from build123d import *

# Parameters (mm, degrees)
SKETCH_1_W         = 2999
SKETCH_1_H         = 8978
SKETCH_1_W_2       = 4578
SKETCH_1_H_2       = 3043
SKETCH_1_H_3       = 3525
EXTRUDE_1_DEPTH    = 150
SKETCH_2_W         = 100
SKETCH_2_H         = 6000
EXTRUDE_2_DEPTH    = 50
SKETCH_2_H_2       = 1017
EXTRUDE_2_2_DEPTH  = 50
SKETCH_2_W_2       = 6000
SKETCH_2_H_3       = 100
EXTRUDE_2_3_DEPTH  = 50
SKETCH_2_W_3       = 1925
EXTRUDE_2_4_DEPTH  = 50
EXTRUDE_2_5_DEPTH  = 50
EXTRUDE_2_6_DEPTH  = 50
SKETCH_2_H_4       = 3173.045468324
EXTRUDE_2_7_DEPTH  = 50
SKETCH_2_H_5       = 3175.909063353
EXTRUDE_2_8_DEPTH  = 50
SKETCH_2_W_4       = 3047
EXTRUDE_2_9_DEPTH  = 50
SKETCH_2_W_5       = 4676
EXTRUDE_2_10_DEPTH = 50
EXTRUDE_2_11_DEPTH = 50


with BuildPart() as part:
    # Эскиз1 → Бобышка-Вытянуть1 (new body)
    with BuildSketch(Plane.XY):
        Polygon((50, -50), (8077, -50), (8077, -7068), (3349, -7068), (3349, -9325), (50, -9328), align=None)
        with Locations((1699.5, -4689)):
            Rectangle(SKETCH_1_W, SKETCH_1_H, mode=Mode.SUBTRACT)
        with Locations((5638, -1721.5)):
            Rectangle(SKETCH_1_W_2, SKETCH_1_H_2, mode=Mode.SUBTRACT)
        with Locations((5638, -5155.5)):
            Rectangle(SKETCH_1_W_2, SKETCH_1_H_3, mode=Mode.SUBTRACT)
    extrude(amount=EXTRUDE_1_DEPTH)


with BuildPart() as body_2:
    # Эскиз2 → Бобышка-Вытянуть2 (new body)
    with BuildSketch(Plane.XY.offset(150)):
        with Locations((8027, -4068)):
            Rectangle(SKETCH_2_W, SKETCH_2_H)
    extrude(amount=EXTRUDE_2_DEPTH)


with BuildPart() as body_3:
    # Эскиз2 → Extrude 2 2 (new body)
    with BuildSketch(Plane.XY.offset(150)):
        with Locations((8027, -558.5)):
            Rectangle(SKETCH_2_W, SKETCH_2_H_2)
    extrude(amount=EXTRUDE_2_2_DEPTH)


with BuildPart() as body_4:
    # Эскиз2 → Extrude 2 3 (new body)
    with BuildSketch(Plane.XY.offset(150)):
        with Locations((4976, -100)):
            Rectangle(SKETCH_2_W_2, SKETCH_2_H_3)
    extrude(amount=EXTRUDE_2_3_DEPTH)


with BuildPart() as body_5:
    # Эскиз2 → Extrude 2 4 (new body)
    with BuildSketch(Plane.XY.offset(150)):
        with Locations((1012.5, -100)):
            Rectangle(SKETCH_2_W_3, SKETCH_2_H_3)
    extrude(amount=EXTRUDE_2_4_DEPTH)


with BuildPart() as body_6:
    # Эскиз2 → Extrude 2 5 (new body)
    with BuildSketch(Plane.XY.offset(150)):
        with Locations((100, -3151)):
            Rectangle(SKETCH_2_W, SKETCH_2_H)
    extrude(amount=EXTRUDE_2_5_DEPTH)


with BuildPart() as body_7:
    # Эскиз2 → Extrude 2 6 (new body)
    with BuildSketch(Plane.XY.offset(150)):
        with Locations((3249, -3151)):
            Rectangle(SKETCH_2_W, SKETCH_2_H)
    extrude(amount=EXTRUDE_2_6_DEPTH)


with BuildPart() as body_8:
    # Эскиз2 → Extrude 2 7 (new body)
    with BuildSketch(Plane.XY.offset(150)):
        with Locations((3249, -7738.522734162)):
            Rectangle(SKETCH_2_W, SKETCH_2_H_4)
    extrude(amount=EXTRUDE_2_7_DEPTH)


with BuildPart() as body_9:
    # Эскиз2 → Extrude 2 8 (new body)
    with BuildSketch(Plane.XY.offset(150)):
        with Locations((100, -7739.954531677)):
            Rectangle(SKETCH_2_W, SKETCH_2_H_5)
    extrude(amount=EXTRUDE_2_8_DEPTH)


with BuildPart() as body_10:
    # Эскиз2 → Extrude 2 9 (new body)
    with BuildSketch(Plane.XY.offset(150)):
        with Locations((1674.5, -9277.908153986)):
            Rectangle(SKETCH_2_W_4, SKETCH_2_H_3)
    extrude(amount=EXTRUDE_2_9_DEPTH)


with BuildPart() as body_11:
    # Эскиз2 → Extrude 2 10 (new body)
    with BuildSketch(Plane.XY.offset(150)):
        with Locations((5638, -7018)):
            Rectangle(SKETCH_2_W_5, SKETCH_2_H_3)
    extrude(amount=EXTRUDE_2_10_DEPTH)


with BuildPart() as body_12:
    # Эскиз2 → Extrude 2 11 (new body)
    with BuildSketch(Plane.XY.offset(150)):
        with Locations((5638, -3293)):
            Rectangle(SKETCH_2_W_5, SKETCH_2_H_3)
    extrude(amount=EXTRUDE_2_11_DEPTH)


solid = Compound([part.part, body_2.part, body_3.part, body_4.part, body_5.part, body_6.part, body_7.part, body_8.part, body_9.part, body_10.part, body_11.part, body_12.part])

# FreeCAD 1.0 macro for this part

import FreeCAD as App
import Part
import Sketcher

doc = App.newDocument("Part")
body = doc.addObject("PartDesign::Body", "Body")

# Sketch on XY plane
sketch1 = body.newObject("Sketcher::SketchObject", "Sketch")
sketch1.AttachmentSupport = (doc.getObject("XY_Plane"), [""])
sketch1.MapMode = "FlatFace"
sketch1.addGeometry([
    Part.LineSegment(App.Vector(8077, -50, 0), App.Vector(50, -50, 0)),  # 0
    Part.LineSegment(App.Vector(50, -50, 0), App.Vector(50, -9328, 0)),  # 1
    Part.LineSegment(App.Vector(50, -9328, 0), App.Vector(3349, -9325, 0)),  # 2
    Part.LineSegment(App.Vector(3349, -9325, 0), App.Vector(3349, -7068, 0)),  # 3
    Part.LineSegment(App.Vector(3349, -7068, 0), App.Vector(8077, -7068, 0)),  # 4
    Part.LineSegment(App.Vector(8077, -7068, 0), App.Vector(8077, -50, 0)),  # 5
    Part.LineSegment(App.Vector(3349, -6918, 0), App.Vector(3349, -3393, 0)),  # 6
    Part.LineSegment(App.Vector(3349, -3393, 0), App.Vector(7927, -3393, 0)),  # 7
    Part.LineSegment(App.Vector(7927, -3393, 0), App.Vector(7927, -6918, 0)),  # 8
    Part.LineSegment(App.Vector(7927, -6918, 0), App.Vector(3349, -6918, 0)),  # 9
    Part.LineSegment(App.Vector(3349, -3243, 0), App.Vector(3349, -200, 0)),  # 10
    Part.LineSegment(App.Vector(3349, -200, 0), App.Vector(7927, -200, 0)),  # 11
    Part.LineSegment(App.Vector(7927, -200, 0), App.Vector(7927, -3243, 0)),  # 12
    Part.LineSegment(App.Vector(7927, -3243, 0), App.Vector(3349, -3243, 0)),  # 13
    Part.LineSegment(App.Vector(200, -9178, 0), App.Vector(200, -200, 0)),  # 14
    Part.LineSegment(App.Vector(200, -200, 0), App.Vector(3199, -200, 0)),  # 15
    Part.LineSegment(App.Vector(3199, -200, 0), App.Vector(3199, -9178, 0)),  # 16
    Part.LineSegment(App.Vector(3199, -9178, 0), App.Vector(200, -9178, 0)),  # 17
], False)
sketch1.addConstraint([
    Sketcher.Constraint("Coincident", 0, 2, 1, 1),
    Sketcher.Constraint("Coincident", 1, 2, 2, 1),
    Sketcher.Constraint("Coincident", 2, 2, 3, 1),
    Sketcher.Constraint("Coincident", 3, 2, 4, 1),
    Sketcher.Constraint("Coincident", 4, 2, 5, 1),
    Sketcher.Constraint("Coincident", 5, 2, 0, 1),
    Sketcher.Constraint("Coincident", 6, 2, 7, 1),
    Sketcher.Constraint("Coincident", 7, 2, 8, 1),
    Sketcher.Constraint("Coincident", 8, 2, 9, 1),
    Sketcher.Constraint("Coincident", 9, 2, 6, 1),
    Sketcher.Constraint("Coincident", 10, 2, 11, 1),
    Sketcher.Constraint("Coincident", 11, 2, 12, 1),
    Sketcher.Constraint("Coincident", 12, 2, 13, 1),
    Sketcher.Constraint("Coincident", 13, 2, 10, 1),
    Sketcher.Constraint("Coincident", 14, 2, 15, 1),
    Sketcher.Constraint("Coincident", 15, 2, 16, 1),
    Sketcher.Constraint("Coincident", 16, 2, 17, 1),
    Sketcher.Constraint("Coincident", 17, 2, 14, 1),
    Sketcher.Constraint("Horizontal", 0),
    Sketcher.Constraint("Vertical", 1),
    Sketcher.Constraint("Vertical", 3),
    Sketcher.Constraint("Horizontal", 4),
    Sketcher.Constraint("Vertical", 5),
    Sketcher.Constraint("Vertical", 6),
    Sketcher.Constraint("Horizontal", 7),
    Sketcher.Constraint("Vertical", 8),
    Sketcher.Constraint("Horizontal", 9),
    Sketcher.Constraint("Vertical", 10),
    Sketcher.Constraint("Horizontal", 11),
    Sketcher.Constraint("Vertical", 12),
    Sketcher.Constraint("Horizontal", 13),
    Sketcher.Constraint("Vertical", 14),
    Sketcher.Constraint("Horizontal", 15),
    Sketcher.Constraint("Vertical", 16),
    Sketcher.Constraint("Horizontal", 17),
    Sketcher.Constraint("Horizontal", 11, 2, 14, 2),
    Sketcher.Constraint("Vertical", 3, 2, 6, 2),
    Sketcher.Constraint("Vertical", 9, 2, 10, 2),
    Sketcher.Constraint("Vertical", 8, 2, 11, 2),
    Sketcher.Constraint("DistanceX", 0, 2, 0, 1, 8027.0),
    Sketcher.Constraint("DistanceX", 4, 1, 4, 2, 4728.0),
    Sketcher.Constraint("DistanceX", 7, 1, 7, 2, 4578.0),
    Sketcher.Constraint("DistanceX", 15, 1, 15, 2, 2999.0),
    Sketcher.Constraint("DistanceY", 1, 2, 1, 1, 9278.0),
    Sketcher.Constraint("DistanceY", 3, 1, 3, 2, 2257.0),
    Sketcher.Constraint("DistanceY", 5, 1, 5, 2, 7018.0),
    Sketcher.Constraint("DistanceY", 6, 1, 6, 2, 3525.0),
    Sketcher.Constraint("DistanceY", 10, 1, 10, 2, 3043.0),
    Sketcher.Constraint("DistanceY", 14, 1, 14, 2, 8978.0),
    Sketcher.Constraint("DistanceX", -1, 1, 0, 2, 50.0),
    Sketcher.Constraint("DistanceY", 0, 2, -1, 1, 50.0),
    Sketcher.Constraint("DistanceY", 6, 2, -1, 1, 3393.0),
    Sketcher.Constraint("DistanceY", 10, 2, -1, 1, 200.0),
    Sketcher.Constraint("DistanceX", -1, 1, 14, 2, 200.0),
])
pad1 = body.newObject("PartDesign::Pad", "Pad")
pad1.Profile = sketch1
pad1.Length = 150
body2 = doc.addObject("PartDesign::Body", "Body001")

# Sketch on XY plane
sketch2 = body2.newObject("Sketcher::SketchObject", "Sketch001")
sketch2.AttachmentSupport = (doc.getObject("XY_Plane001"), [""])
sketch2.MapMode = "FlatFace"
sketch2.AttachmentOffset = App.Placement(App.Vector(0, 0, 150), App.Rotation())
sketch2.addGeometry([
    Part.LineSegment(App.Vector(7977, -1068, 0), App.Vector(7977, -7068, 0)),
    Part.LineSegment(App.Vector(7977, -7068, 0), App.Vector(8077, -7068, 0)),
    Part.LineSegment(App.Vector(8077, -7068, 0), App.Vector(8077, -1068, 0)),
    Part.LineSegment(App.Vector(8077, -1068, 0), App.Vector(7977, -1068, 0)),
], False)
sketch2.addConstraint([
    Sketcher.Constraint("Coincident", 0, 2, 1, 1),
    Sketcher.Constraint("Coincident", 1, 2, 2, 1),
    Sketcher.Constraint("Coincident", 2, 2, 3, 1),
    Sketcher.Constraint("Coincident", 3, 2, 0, 1),
    Sketcher.Constraint("Vertical", 0),
    Sketcher.Constraint("Horizontal", 1),
    Sketcher.Constraint("Vertical", 2),
    Sketcher.Constraint("Horizontal", 3),
    Sketcher.Constraint("DistanceX", 1, 1, 1, 2, 100.0),
    Sketcher.Constraint("DistanceY", 0, 2, 0, 1, 6000.0),
    Sketcher.Constraint("DistanceX", -1, 1, 0, 2, 7977.0),
    Sketcher.Constraint("DistanceY", 0, 2, -1, 1, 7068.0),
])
pad2 = body2.newObject("PartDesign::Pad", "Pad001")
pad2.Profile = sketch2
pad2.Length = 50
body3 = doc.addObject("PartDesign::Body", "Body002")

# Sketch on XY plane
sketch3 = body3.newObject("Sketcher::SketchObject", "Sketch002")
sketch3.AttachmentSupport = (doc.getObject("XY_Plane002"), [""])
sketch3.MapMode = "FlatFace"
sketch3.AttachmentOffset = App.Placement(App.Vector(0, 0, 150), App.Rotation())
sketch3.addGeometry([
    Part.LineSegment(App.Vector(7977, -50, 0), App.Vector(7977, -1067, 0)),
    Part.LineSegment(App.Vector(7977, -1067, 0), App.Vector(8077, -1067, 0)),
    Part.LineSegment(App.Vector(8077, -1067, 0), App.Vector(8077, -50, 0)),
    Part.LineSegment(App.Vector(8077, -50, 0), App.Vector(7977, -50, 0)),
], False)
sketch3.addConstraint([
    Sketcher.Constraint("Coincident", 0, 2, 1, 1),
    Sketcher.Constraint("Coincident", 1, 2, 2, 1),
    Sketcher.Constraint("Coincident", 2, 2, 3, 1),
    Sketcher.Constraint("Coincident", 3, 2, 0, 1),
    Sketcher.Constraint("Vertical", 0),
    Sketcher.Constraint("Horizontal", 1),
    Sketcher.Constraint("Vertical", 2),
    Sketcher.Constraint("Horizontal", 3),
    Sketcher.Constraint("DistanceX", 1, 1, 1, 2, 100.0),
    Sketcher.Constraint("DistanceY", 0, 2, 0, 1, 1017.0),
    Sketcher.Constraint("DistanceX", -1, 1, 0, 2, 7977.0),
    Sketcher.Constraint("DistanceY", 0, 2, -1, 1, 1067.0),
])
pad3 = body3.newObject("PartDesign::Pad", "Pad002")
pad3.Profile = sketch3
pad3.Length = 50
body4 = doc.addObject("PartDesign::Body", "Body003")

# Sketch on XY plane
sketch4 = body4.newObject("Sketcher::SketchObject", "Sketch003")
sketch4.AttachmentSupport = (doc.getObject("XY_Plane003"), [""])
sketch4.MapMode = "FlatFace"
sketch4.AttachmentOffset = App.Placement(App.Vector(0, 0, 150), App.Rotation())
sketch4.addGeometry([
    Part.LineSegment(App.Vector(1976, -50, 0), App.Vector(1976, -150, 0)),
    Part.LineSegment(App.Vector(1976, -150, 0), App.Vector(7976, -150, 0)),
    Part.LineSegment(App.Vector(7976, -150, 0), App.Vector(7976, -50, 0)),
    Part.LineSegment(App.Vector(7976, -50, 0), App.Vector(1976, -50, 0)),
], False)
sketch4.addConstraint([
    Sketcher.Constraint("Coincident", 0, 2, 1, 1),
    Sketcher.Constraint("Coincident", 1, 2, 2, 1),
    Sketcher.Constraint("Coincident", 2, 2, 3, 1),
    Sketcher.Constraint("Coincident", 3, 2, 0, 1),
    Sketcher.Constraint("Vertical", 0),
    Sketcher.Constraint("Horizontal", 1),
    Sketcher.Constraint("Vertical", 2),
    Sketcher.Constraint("Horizontal", 3),
    Sketcher.Constraint("DistanceX", 1, 1, 1, 2, 6000.0),
    Sketcher.Constraint("DistanceY", 0, 2, 0, 1, 100.0),
    Sketcher.Constraint("DistanceX", -1, 1, 0, 2, 1976.0),
    Sketcher.Constraint("DistanceY", 0, 2, -1, 1, 150.0),
])
pad4 = body4.newObject("PartDesign::Pad", "Pad003")
pad4.Profile = sketch4
pad4.Length = 50
body5 = doc.addObject("PartDesign::Body", "Body004")

# Sketch on XY plane
sketch5 = body5.newObject("Sketcher::SketchObject", "Sketch004")
sketch5.AttachmentSupport = (doc.getObject("XY_Plane004"), [""])
sketch5.MapMode = "FlatFace"
sketch5.AttachmentOffset = App.Placement(App.Vector(0, 0, 150), App.Rotation())
sketch5.addGeometry([
    Part.LineSegment(App.Vector(50, -50, 0), App.Vector(50, -150, 0)),
    Part.LineSegment(App.Vector(50, -150, 0), App.Vector(1975, -150, 0)),
    Part.LineSegment(App.Vector(1975, -150, 0), App.Vector(1975, -50, 0)),
    Part.LineSegment(App.Vector(1975, -50, 0), App.Vector(50, -50, 0)),
], False)
sketch5.addConstraint([
    Sketcher.Constraint("Coincident", 0, 2, 1, 1),
    Sketcher.Constraint("Coincident", 1, 2, 2, 1),
    Sketcher.Constraint("Coincident", 2, 2, 3, 1),
    Sketcher.Constraint("Coincident", 3, 2, 0, 1),
    Sketcher.Constraint("Vertical", 0),
    Sketcher.Constraint("Horizontal", 1),
    Sketcher.Constraint("Vertical", 2),
    Sketcher.Constraint("Horizontal", 3),
    Sketcher.Constraint("DistanceX", 1, 1, 1, 2, 1925.0),
    Sketcher.Constraint("DistanceY", 0, 2, 0, 1, 100.0),
    Sketcher.Constraint("DistanceX", -1, 1, 0, 2, 50.0),
    Sketcher.Constraint("DistanceY", 0, 2, -1, 1, 150.0),
])
pad5 = body5.newObject("PartDesign::Pad", "Pad004")
pad5.Profile = sketch5
pad5.Length = 50
body6 = doc.addObject("PartDesign::Body", "Body005")

# Sketch on XY plane
sketch6 = body6.newObject("Sketcher::SketchObject", "Sketch005")
sketch6.AttachmentSupport = (doc.getObject("XY_Plane005"), [""])
sketch6.MapMode = "FlatFace"
sketch6.AttachmentOffset = App.Placement(App.Vector(0, 0, 150), App.Rotation())
sketch6.addGeometry([
    Part.LineSegment(App.Vector(50, -151, 0), App.Vector(50, -6151, 0)),
    Part.LineSegment(App.Vector(50, -6151, 0), App.Vector(150, -6151, 0)),
    Part.LineSegment(App.Vector(150, -6151, 0), App.Vector(150, -151, 0)),
    Part.LineSegment(App.Vector(150, -151, 0), App.Vector(50, -151, 0)),
], False)
sketch6.addConstraint([
    Sketcher.Constraint("Coincident", 0, 2, 1, 1),
    Sketcher.Constraint("Coincident", 1, 2, 2, 1),
    Sketcher.Constraint("Coincident", 2, 2, 3, 1),
    Sketcher.Constraint("Coincident", 3, 2, 0, 1),
    Sketcher.Constraint("Vertical", 0),
    Sketcher.Constraint("Horizontal", 1),
    Sketcher.Constraint("Vertical", 2),
    Sketcher.Constraint("Horizontal", 3),
    Sketcher.Constraint("DistanceX", 1, 1, 1, 2, 100.0),
    Sketcher.Constraint("DistanceY", 0, 2, 0, 1, 6000.0),
    Sketcher.Constraint("DistanceX", -1, 1, 0, 2, 50.0),
    Sketcher.Constraint("DistanceY", 0, 2, -1, 1, 6151.0),
])
pad6 = body6.newObject("PartDesign::Pad", "Pad005")
pad6.Profile = sketch6
pad6.Length = 50
body7 = doc.addObject("PartDesign::Body", "Body006")

# Sketch on XY plane
sketch7 = body7.newObject("Sketcher::SketchObject", "Sketch006")
sketch7.AttachmentSupport = (doc.getObject("XY_Plane006"), [""])
sketch7.MapMode = "FlatFace"
sketch7.AttachmentOffset = App.Placement(App.Vector(0, 0, 150), App.Rotation())
sketch7.addGeometry([
    Part.LineSegment(App.Vector(3199, -151, 0), App.Vector(3199, -6151, 0)),
    Part.LineSegment(App.Vector(3199, -6151, 0), App.Vector(3299, -6151, 0)),
    Part.LineSegment(App.Vector(3299, -6151, 0), App.Vector(3299, -151, 0)),
    Part.LineSegment(App.Vector(3299, -151, 0), App.Vector(3199, -151, 0)),
], False)
sketch7.addConstraint([
    Sketcher.Constraint("Coincident", 0, 2, 1, 1),
    Sketcher.Constraint("Coincident", 1, 2, 2, 1),
    Sketcher.Constraint("Coincident", 2, 2, 3, 1),
    Sketcher.Constraint("Coincident", 3, 2, 0, 1),
    Sketcher.Constraint("Vertical", 0),
    Sketcher.Constraint("Horizontal", 1),
    Sketcher.Constraint("Vertical", 2),
    Sketcher.Constraint("Horizontal", 3),
    Sketcher.Constraint("DistanceX", 1, 1, 1, 2, 100.0),
    Sketcher.Constraint("DistanceY", 0, 2, 0, 1, 6000.0),
    Sketcher.Constraint("DistanceX", -1, 1, 0, 2, 3199.0),
    Sketcher.Constraint("DistanceY", 0, 2, -1, 1, 6151.0),
])
pad7 = body7.newObject("PartDesign::Pad", "Pad006")
pad7.Profile = sketch7
pad7.Length = 50
body8 = doc.addObject("PartDesign::Body", "Body007")

# Sketch on XY plane
sketch8 = body8.newObject("Sketcher::SketchObject", "Sketch007")
sketch8.AttachmentSupport = (doc.getObject("XY_Plane007"), [""])
sketch8.MapMode = "FlatFace"
sketch8.AttachmentOffset = App.Placement(App.Vector(0, 0, 150), App.Rotation())
sketch8.addGeometry([
    Part.LineSegment(App.Vector(3199, -6152, 0), App.Vector(3199, -9325, 0)),
    Part.LineSegment(App.Vector(3199, -9325, 0), App.Vector(3299, -9325, 0)),
    Part.LineSegment(App.Vector(3299, -9325, 0), App.Vector(3299, -6152, 0)),
    Part.LineSegment(App.Vector(3299, -6152, 0), App.Vector(3199, -6152, 0)),
], False)
sketch8.addConstraint([
    Sketcher.Constraint("Coincident", 0, 2, 1, 1),
    Sketcher.Constraint("Coincident", 1, 2, 2, 1),
    Sketcher.Constraint("Coincident", 2, 2, 3, 1),
    Sketcher.Constraint("Coincident", 3, 2, 0, 1),
    Sketcher.Constraint("Vertical", 0),
    Sketcher.Constraint("Horizontal", 1),
    Sketcher.Constraint("Vertical", 2),
    Sketcher.Constraint("Horizontal", 3),
    Sketcher.Constraint("DistanceX", 1, 1, 1, 2, 100.0),
    Sketcher.Constraint("DistanceX", -1, 1, 0, 2, 3199.0),
    Sketcher.Constraint("DistanceY", 2, 2, -1, 1, 6152.0),
    Sketcher.Constraint("DistanceY", 0, 2, 0, 1, 3173.045468),
])
pad8 = body8.newObject("PartDesign::Pad", "Pad007")
pad8.Profile = sketch8
pad8.Length = 50
body9 = doc.addObject("PartDesign::Body", "Body008")

# Sketch on XY plane
sketch9 = body9.newObject("Sketcher::SketchObject", "Sketch008")
sketch9.AttachmentSupport = (doc.getObject("XY_Plane008"), [""])
sketch9.MapMode = "FlatFace"
sketch9.AttachmentOffset = App.Placement(App.Vector(0, 0, 150), App.Rotation())
sketch9.addGeometry([
    Part.LineSegment(App.Vector(50, -6152, 0), App.Vector(50, -9328, 0)),
    Part.LineSegment(App.Vector(50, -9328, 0), App.Vector(150, -9328, 0)),
    Part.LineSegment(App.Vector(150, -9328, 0), App.Vector(150, -6152, 0)),
    Part.LineSegment(App.Vector(150, -6152, 0), App.Vector(50, -6152, 0)),
], False)
sketch9.addConstraint([
    Sketcher.Constraint("Coincident", 0, 2, 1, 1),
    Sketcher.Constraint("Coincident", 1, 2, 2, 1),
    Sketcher.Constraint("Coincident", 2, 2, 3, 1),
    Sketcher.Constraint("Coincident", 3, 2, 0, 1),
    Sketcher.Constraint("Vertical", 0),
    Sketcher.Constraint("Horizontal", 1),
    Sketcher.Constraint("Vertical", 2),
    Sketcher.Constraint("Horizontal", 3),
    Sketcher.Constraint("DistanceX", 1, 1, 1, 2, 100.0),
    Sketcher.Constraint("DistanceX", -1, 1, 0, 2, 50.0),
    Sketcher.Constraint("DistanceY", 2, 2, -1, 1, 6152.0),
    Sketcher.Constraint("DistanceY", 0, 2, 0, 1, 3175.909063),
])
pad9 = body9.newObject("PartDesign::Pad", "Pad008")
pad9.Profile = sketch9
pad9.Length = 50
body10 = doc.addObject("PartDesign::Body", "Body009")

# Sketch on XY plane
sketch10 = body10.newObject("Sketcher::SketchObject", "Sketch009")
sketch10.AttachmentSupport = (doc.getObject("XY_Plane009"), [""])
sketch10.MapMode = "FlatFace"
sketch10.AttachmentOffset = App.Placement(App.Vector(0, 0, 150), App.Rotation())
sketch10.addGeometry([
    Part.LineSegment(App.Vector(151, -9228, 0), App.Vector(151, -9328, 0)),
    Part.LineSegment(App.Vector(151, -9328, 0), App.Vector(3198, -9328, 0)),
    Part.LineSegment(App.Vector(3198, -9328, 0), App.Vector(3198, -9228, 0)),
    Part.LineSegment(App.Vector(3198, -9228, 0), App.Vector(151, -9228, 0)),
], False)
sketch10.addConstraint([
    Sketcher.Constraint("Coincident", 0, 2, 1, 1),
    Sketcher.Constraint("Coincident", 1, 2, 2, 1),
    Sketcher.Constraint("Coincident", 2, 2, 3, 1),
    Sketcher.Constraint("Coincident", 3, 2, 0, 1),
    Sketcher.Constraint("Vertical", 0),
    Sketcher.Constraint("Horizontal", 1),
    Sketcher.Constraint("Vertical", 2),
    Sketcher.Constraint("Horizontal", 3),
    Sketcher.Constraint("DistanceX", 1, 1, 1, 2, 3047.0),
    Sketcher.Constraint("DistanceY", 0, 2, 0, 1, 100.0),
    Sketcher.Constraint("DistanceX", -1, 1, 0, 2, 151.0),
    Sketcher.Constraint("DistanceY", 0, 2, -1, 1, 9327.908154),
])
pad10 = body10.newObject("PartDesign::Pad", "Pad009")
pad10.Profile = sketch10
pad10.Length = 50
body11 = doc.addObject("PartDesign::Body", "Body010")

# Sketch on XY plane
sketch11 = body11.newObject("Sketcher::SketchObject", "Sketch010")
sketch11.AttachmentSupport = (doc.getObject("XY_Plane010"), [""])
sketch11.MapMode = "FlatFace"
sketch11.AttachmentOffset = App.Placement(App.Vector(0, 0, 150), App.Rotation())
sketch11.addGeometry([
    Part.LineSegment(App.Vector(3300, -6968, 0), App.Vector(3300, -7068, 0)),
    Part.LineSegment(App.Vector(3300, -7068, 0), App.Vector(7976, -7068, 0)),
    Part.LineSegment(App.Vector(7976, -7068, 0), App.Vector(7976, -6968, 0)),
    Part.LineSegment(App.Vector(7976, -6968, 0), App.Vector(3300, -6968, 0)),
], False)
sketch11.addConstraint([
    Sketcher.Constraint("Coincident", 0, 2, 1, 1),
    Sketcher.Constraint("Coincident", 1, 2, 2, 1),
    Sketcher.Constraint("Coincident", 2, 2, 3, 1),
    Sketcher.Constraint("Coincident", 3, 2, 0, 1),
    Sketcher.Constraint("Vertical", 0),
    Sketcher.Constraint("Horizontal", 1),
    Sketcher.Constraint("Vertical", 2),
    Sketcher.Constraint("Horizontal", 3),
    Sketcher.Constraint("DistanceX", 1, 1, 1, 2, 4676.0),
    Sketcher.Constraint("DistanceY", 0, 2, 0, 1, 100.0),
    Sketcher.Constraint("DistanceX", -1, 1, 0, 2, 3300.0),
    Sketcher.Constraint("DistanceY", 0, 2, -1, 1, 7068.0),
])
pad11 = body11.newObject("PartDesign::Pad", "Pad010")
pad11.Profile = sketch11
pad11.Length = 50
body12 = doc.addObject("PartDesign::Body", "Body011")

# Sketch on XY plane
sketch12 = body12.newObject("Sketcher::SketchObject", "Sketch011")
sketch12.AttachmentSupport = (doc.getObject("XY_Plane011"), [""])
sketch12.MapMode = "FlatFace"
sketch12.AttachmentOffset = App.Placement(App.Vector(0, 0, 150), App.Rotation())
sketch12.addGeometry([
    Part.LineSegment(App.Vector(3300, -3243, 0), App.Vector(3300, -3343, 0)),
    Part.LineSegment(App.Vector(3300, -3343, 0), App.Vector(7976, -3343, 0)),
    Part.LineSegment(App.Vector(7976, -3343, 0), App.Vector(7976, -3243, 0)),
    Part.LineSegment(App.Vector(7976, -3243, 0), App.Vector(3300, -3243, 0)),
], False)
sketch12.addConstraint([
    Sketcher.Constraint("Coincident", 0, 2, 1, 1),
    Sketcher.Constraint("Coincident", 1, 2, 2, 1),
    Sketcher.Constraint("Coincident", 2, 2, 3, 1),
    Sketcher.Constraint("Coincident", 3, 2, 0, 1),
    Sketcher.Constraint("Vertical", 0),
    Sketcher.Constraint("Horizontal", 1),
    Sketcher.Constraint("Vertical", 2),
    Sketcher.Constraint("Horizontal", 3),
    Sketcher.Constraint("DistanceX", 1, 1, 1, 2, 4676.0),
    Sketcher.Constraint("DistanceY", 0, 2, 0, 1, 100.0),
    Sketcher.Constraint("DistanceX", -1, 1, 0, 2, 3300.0),
    Sketcher.Constraint("DistanceY", 0, 2, -1, 1, 3343.0),
])
pad12 = body12.newObject("PartDesign::Pad", "Pad011")
pad12.Profile = sketch12
pad12.Length = 50

doc.recompute()
